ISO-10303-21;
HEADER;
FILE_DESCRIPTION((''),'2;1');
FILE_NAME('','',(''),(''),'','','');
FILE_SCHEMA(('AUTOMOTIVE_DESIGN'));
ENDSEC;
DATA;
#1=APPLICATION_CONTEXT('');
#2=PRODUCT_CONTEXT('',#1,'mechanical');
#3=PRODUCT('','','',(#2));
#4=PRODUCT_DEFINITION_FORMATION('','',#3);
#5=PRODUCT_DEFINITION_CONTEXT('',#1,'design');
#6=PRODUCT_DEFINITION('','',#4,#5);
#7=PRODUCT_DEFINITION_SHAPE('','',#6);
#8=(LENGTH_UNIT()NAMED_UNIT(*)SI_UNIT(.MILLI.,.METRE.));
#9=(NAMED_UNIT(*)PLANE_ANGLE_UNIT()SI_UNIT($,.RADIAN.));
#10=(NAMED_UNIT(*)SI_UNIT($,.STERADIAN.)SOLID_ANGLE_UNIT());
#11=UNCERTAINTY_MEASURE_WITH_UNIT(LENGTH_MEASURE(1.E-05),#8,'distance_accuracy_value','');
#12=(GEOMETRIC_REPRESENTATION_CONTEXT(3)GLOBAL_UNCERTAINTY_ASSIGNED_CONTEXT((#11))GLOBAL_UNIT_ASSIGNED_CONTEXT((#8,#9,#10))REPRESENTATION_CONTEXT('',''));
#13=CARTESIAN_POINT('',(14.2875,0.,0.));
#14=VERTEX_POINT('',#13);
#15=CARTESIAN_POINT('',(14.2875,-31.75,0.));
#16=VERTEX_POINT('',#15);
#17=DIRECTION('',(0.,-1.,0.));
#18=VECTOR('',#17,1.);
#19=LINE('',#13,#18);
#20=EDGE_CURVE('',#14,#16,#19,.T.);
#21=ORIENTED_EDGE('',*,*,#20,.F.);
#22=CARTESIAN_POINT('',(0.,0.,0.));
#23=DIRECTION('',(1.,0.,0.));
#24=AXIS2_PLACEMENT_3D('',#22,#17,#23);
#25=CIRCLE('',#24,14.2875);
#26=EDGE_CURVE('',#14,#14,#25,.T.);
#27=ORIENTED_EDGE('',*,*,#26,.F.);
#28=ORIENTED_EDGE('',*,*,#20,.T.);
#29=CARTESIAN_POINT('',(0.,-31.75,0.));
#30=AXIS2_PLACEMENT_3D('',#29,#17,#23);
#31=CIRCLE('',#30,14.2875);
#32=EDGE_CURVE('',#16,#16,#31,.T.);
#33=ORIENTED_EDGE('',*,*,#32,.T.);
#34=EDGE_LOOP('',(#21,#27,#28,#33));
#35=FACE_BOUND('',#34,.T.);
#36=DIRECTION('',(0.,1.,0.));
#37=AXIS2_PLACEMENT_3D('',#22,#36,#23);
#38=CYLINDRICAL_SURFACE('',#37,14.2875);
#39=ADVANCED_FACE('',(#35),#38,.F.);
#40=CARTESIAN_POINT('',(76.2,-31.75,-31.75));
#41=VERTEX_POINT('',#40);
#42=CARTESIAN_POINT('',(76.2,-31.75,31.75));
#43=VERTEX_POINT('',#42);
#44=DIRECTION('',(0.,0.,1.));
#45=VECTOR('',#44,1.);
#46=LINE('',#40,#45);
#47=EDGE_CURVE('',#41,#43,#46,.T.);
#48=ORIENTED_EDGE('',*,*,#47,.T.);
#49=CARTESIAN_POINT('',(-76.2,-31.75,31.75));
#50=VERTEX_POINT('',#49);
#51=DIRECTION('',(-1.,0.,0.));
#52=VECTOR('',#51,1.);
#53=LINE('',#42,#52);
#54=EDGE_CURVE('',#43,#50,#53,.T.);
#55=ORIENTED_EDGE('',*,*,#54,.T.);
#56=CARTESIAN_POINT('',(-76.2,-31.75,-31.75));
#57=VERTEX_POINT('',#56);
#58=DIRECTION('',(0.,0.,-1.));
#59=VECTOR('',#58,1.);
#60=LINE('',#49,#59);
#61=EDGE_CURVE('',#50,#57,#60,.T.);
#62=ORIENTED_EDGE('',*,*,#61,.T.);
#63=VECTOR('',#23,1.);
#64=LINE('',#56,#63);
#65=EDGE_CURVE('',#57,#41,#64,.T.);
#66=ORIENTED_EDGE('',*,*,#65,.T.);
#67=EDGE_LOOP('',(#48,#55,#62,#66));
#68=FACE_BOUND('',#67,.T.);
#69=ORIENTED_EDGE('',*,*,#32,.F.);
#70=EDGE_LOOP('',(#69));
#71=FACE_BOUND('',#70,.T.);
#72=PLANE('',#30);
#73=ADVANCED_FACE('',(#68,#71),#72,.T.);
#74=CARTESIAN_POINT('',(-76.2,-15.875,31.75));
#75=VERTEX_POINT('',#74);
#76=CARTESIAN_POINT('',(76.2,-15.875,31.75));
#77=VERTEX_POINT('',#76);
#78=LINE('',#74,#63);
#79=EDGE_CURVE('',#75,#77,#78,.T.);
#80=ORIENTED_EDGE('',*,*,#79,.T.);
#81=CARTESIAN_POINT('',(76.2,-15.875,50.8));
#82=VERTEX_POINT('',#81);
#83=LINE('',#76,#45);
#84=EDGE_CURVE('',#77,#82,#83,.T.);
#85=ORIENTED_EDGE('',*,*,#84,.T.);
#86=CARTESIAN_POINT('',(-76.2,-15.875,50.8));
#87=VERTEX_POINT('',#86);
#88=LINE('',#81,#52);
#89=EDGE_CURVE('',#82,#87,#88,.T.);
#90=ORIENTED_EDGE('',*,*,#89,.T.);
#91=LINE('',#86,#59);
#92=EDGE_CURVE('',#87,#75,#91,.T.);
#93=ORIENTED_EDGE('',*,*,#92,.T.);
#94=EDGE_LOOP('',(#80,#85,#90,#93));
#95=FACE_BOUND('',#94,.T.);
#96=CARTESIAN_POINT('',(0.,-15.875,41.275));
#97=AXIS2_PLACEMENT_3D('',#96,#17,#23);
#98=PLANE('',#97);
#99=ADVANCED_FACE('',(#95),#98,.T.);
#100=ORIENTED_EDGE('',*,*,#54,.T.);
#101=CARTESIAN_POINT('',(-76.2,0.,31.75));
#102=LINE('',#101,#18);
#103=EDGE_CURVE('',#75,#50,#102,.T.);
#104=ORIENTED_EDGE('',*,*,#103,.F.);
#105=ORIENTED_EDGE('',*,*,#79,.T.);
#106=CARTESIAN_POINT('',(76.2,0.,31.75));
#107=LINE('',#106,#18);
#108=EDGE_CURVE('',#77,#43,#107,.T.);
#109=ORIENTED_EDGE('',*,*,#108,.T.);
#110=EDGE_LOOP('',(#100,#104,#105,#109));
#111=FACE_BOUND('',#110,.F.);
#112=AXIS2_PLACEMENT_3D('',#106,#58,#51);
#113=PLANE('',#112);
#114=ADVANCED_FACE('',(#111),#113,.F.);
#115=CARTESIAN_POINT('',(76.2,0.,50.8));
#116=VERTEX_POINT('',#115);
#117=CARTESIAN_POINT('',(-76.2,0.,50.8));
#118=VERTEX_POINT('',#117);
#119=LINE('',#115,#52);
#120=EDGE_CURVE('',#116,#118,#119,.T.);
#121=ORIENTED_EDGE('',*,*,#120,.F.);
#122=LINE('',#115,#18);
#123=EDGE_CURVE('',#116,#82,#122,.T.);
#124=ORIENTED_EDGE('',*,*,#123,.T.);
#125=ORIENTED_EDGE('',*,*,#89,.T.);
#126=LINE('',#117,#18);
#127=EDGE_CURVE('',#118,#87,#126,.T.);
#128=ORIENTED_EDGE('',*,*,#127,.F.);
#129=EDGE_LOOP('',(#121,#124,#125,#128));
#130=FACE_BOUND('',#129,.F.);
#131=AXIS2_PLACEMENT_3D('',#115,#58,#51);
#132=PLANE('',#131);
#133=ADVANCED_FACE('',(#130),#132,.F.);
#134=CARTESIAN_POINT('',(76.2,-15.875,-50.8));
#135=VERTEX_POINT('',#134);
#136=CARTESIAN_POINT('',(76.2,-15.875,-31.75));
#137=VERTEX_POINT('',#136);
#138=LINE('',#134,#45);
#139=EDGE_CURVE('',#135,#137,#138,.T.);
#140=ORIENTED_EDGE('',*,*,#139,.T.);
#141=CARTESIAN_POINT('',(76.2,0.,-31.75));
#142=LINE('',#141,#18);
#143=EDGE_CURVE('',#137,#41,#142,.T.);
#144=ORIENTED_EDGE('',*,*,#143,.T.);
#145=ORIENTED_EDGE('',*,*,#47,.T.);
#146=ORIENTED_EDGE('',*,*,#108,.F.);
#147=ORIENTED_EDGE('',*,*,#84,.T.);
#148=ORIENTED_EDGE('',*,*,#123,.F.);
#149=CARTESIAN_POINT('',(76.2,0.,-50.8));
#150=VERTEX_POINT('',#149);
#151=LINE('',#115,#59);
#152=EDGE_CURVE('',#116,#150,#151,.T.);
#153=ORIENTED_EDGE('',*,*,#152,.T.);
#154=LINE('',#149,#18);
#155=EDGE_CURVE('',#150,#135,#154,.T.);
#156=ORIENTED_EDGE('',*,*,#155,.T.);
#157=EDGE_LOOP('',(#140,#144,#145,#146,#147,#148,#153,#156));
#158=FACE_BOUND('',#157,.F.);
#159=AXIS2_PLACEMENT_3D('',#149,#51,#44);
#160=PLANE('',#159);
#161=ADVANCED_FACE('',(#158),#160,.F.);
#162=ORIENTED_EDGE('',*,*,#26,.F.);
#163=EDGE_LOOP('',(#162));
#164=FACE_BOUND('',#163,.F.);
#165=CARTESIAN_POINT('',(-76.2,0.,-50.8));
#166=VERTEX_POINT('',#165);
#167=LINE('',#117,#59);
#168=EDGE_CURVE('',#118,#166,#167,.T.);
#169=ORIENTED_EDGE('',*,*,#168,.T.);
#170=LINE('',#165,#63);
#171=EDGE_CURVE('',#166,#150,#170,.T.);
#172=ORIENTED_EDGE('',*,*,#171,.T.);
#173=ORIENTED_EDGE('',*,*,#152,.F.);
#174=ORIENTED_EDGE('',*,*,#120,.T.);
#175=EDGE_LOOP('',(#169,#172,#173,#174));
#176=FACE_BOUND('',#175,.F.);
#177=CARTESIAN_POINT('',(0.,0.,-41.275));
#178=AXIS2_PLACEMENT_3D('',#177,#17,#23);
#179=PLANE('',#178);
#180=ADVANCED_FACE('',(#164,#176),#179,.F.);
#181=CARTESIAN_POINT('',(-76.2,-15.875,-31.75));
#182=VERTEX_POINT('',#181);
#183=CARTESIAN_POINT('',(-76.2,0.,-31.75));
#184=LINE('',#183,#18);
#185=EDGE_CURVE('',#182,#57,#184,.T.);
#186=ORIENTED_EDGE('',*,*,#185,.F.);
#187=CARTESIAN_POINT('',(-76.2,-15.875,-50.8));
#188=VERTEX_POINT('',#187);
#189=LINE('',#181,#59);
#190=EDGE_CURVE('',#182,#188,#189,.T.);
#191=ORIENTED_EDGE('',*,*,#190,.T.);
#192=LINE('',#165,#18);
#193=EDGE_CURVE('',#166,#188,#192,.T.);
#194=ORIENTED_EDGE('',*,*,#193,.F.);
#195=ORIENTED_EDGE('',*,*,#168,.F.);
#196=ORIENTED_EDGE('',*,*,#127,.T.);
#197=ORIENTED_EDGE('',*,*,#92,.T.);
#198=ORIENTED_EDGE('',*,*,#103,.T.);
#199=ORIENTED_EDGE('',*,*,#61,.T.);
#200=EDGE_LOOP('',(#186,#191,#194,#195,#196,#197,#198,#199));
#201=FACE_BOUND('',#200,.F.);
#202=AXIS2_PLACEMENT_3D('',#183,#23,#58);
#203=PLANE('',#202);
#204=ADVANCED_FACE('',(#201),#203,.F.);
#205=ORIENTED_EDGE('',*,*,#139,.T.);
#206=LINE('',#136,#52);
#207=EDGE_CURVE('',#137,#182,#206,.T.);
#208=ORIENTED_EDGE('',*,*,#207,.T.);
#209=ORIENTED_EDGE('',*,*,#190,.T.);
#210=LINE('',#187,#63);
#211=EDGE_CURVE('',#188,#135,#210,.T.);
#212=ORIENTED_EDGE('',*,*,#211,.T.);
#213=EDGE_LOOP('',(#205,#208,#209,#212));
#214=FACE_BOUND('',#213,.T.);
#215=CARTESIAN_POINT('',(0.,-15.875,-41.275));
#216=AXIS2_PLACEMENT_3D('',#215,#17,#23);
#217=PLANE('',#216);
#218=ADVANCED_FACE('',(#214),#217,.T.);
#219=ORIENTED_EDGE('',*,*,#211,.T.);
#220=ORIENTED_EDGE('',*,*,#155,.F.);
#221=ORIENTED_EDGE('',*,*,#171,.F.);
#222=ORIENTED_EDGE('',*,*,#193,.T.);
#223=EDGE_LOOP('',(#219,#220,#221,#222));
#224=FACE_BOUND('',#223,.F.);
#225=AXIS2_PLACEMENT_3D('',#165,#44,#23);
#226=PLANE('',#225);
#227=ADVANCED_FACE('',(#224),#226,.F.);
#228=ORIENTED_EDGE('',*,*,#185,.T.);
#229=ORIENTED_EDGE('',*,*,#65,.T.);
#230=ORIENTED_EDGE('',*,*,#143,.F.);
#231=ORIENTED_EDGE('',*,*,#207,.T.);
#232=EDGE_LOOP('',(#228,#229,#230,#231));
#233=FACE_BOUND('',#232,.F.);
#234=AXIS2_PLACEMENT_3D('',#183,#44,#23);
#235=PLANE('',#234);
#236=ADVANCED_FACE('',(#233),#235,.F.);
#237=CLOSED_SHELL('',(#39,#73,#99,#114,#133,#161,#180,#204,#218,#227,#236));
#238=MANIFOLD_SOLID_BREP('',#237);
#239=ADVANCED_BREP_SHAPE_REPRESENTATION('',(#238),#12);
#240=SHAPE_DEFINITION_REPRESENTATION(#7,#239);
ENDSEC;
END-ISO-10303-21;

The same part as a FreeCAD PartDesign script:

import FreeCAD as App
import Part
import Sketcher

V = App.Vector
Q = App.Units.Quantity

doc = App.newDocument("Part")
body = doc.addObject("PartDesign::Body", "Body")

sketch1 = body.newObject("Sketcher::SketchObject", "Sketch")
sketch1.AttachmentSupport = (doc.getObject("XZ_Plane"), [""])
sketch1.MapMode = "FlatFace"
sketch1.addGeometry(Part.LineSegment(V(76.2, 31.75, 0), V(-76.2, 31.75, 0)), False)
sketch1.addGeometry(Part.LineSegment(V(-76.2, 31.75, 0), V(-76.2, -31.75, 0)), False)
sketch1.addGeometry(Part.LineSegment(V(-76.2, -31.75, 0), V(76.2, -31.75, 0)), False)
sketch1.addGeometry(Part.LineSegment(V(76.2, -31.75, 0), V(76.2, 31.75, 0)), False)
sketch1.addGeometry(Part.Circle(V(0, 0, 0), V(0, 0, 1), 14.2875), False)
sketch1.addConstraint(Sketcher.Constraint("Coincident", 0, 2, 1, 1))
sketch1.addConstraint(Sketcher.Constraint("Coincident", 1, 2, 2, 1))
sketch1.addConstraint(Sketcher.Constraint("Coincident", 2, 2, 3, 1))
sketch1.addConstraint(Sketcher.Constraint("Coincident", 3, 2, 0, 1))
sketch1.addConstraint(Sketcher.Constraint("Horizontal", 0))
sketch1.addConstraint(Sketcher.Constraint("Vertical", 1))
sketch1.addConstraint(Sketcher.Constraint("Horizontal", 2))
sketch1.addConstraint(Sketcher.Constraint("Vertical", 3))
sketch1.addConstraint(Sketcher.Constraint("Coincident", 4, 3, -1, 1))
sketch1.addConstraint(Sketcher.Constraint("Symmetric", 0, 2, 2, 2, -1, 1))
sketch1.addConstraint(Sketcher.Constraint("DistanceX", 0, 2, 0, 1, Q("6 in")))
sketch1.addConstraint(Sketcher.Constraint("Diameter", 4, Q("1.125 in")))
sketch1.addConstraint(Sketcher.Constraint("DistanceY", 1, 2, 1, 1, Q("2.5 in")))
pad1 = body.newObject("PartDesign::Pad", "Pad")
pad1.Profile = sketch1
pad1.Length = Q("1.25 in")

sketch2 = body.newObject("Sketcher::SketchObject", "Sketch001")
sketch2.AttachmentSupport = (doc.getObject("XZ_Plane"), [""])
sketch2.MapMode = "FlatFace"
sketch2.addGeometry(Part.LineSegment(V(-76.2, -31.75, 0), V(-76.2, -50.8, 0)), False)
sketch2.addGeometry(Part.LineSegment(V(-76.2, -50.8, 0), V(76.2, -50.8, 0)), False)
sketch2.addGeometry(Part.LineSegment(V(76.2, -50.8, 0), V(76.2, -31.75, 0)), False)
sketch2.addGeometry(Part.LineSegment(V(76.2, -31.75, 0), V(-76.2, -31.75, 0)), False)
sketch2.addGeometry(Part.LineSegment(V(-76.2, 31.75, 0), V(76.2, 31.75, 0)), False)
sketch2.addGeometry(Part.LineSegment(V(76.2, 31.75, 0), V(76.2, 50.8, 0)), False)
sketch2.addGeometry(Part.LineSegment(V(76.2, 50.8, 0), V(-76.2, 50.8, 0)), False)
sketch2.addGeometry(Part.LineSegment(V(-76.2, 50.8, 0), V(-76.2, 31.75, 0)), False)
sketch2.addConstraint(Sketcher.Constraint("Coincident", 0, 2, 1, 1))
sketch2.addConstraint(Sketcher.Constraint("Coincident", 1, 2, 2, 1))
sketch2.addConstraint(Sketcher.Constraint("Coincident", 2, 2, 3, 1))
sketch2.addConstraint(Sketcher.Constraint("Coincident", 3, 2, 0, 1))
sketch2.addConstraint(Sketcher.Constraint("Coincident", 4, 2, 5, 1))
sketch2.addConstraint(Sketcher.Constraint("Coincident", 5, 2, 6, 1))
sketch2.addConstraint(Sketcher.Constraint("Coincident", 6, 2, 7, 1))
sketch2.addConstraint(Sketcher.Constraint("Coincident", 7, 2, 4, 1))
sketch2.addConstraint(Sketcher.Constraint("Vertical", 0))
sketch2.addConstraint(Sketcher.Constraint("Horizontal", 1))
sketch2.addConstraint(Sketcher.Constraint("Vertical", 2))
sketch2.addConstraint(Sketcher.Constraint("Horizontal", 3))
sketch2.addConstraint(Sketcher.Constraint("Horizontal", 4))
sketch2.addConstraint(Sketcher.Constraint("Vertical", 5))
sketch2.addConstraint(Sketcher.Constraint("Horizontal", 6))
sketch2.addConstraint(Sketcher.Constraint("Vertical", 7))
sketch2.addConstraint(Sketcher.Constraint("Symmetric", 3, 2, 4, 2, -1, 1))
sketch2.addConstraint(Sketcher.Constraint("Symmetric", 1, 2, 6, 2, -1, 1))
sketch2.addConstraint(Sketcher.Constraint("Vertical", 2, 2, 4, 2))
sketch2.addConstraint(Sketcher.Constraint("DistanceX", 1, 1, 1, 2, Q("6 in")))
sketch2.addConstraint(Sketcher.Constraint("DistanceY", 0, 2, -1, 1, Q("2 in")))
sketch2.addConstraint(Sketcher.Constraint("DistanceY", 0, 2, 0, 1, Q("0.75 in")))
pad2 = body.newObject("PartDesign::Pad", "Pad001")
pad2.Profile = sketch2
pad2.Length = Q("0.625 in")

doc.recompute()
